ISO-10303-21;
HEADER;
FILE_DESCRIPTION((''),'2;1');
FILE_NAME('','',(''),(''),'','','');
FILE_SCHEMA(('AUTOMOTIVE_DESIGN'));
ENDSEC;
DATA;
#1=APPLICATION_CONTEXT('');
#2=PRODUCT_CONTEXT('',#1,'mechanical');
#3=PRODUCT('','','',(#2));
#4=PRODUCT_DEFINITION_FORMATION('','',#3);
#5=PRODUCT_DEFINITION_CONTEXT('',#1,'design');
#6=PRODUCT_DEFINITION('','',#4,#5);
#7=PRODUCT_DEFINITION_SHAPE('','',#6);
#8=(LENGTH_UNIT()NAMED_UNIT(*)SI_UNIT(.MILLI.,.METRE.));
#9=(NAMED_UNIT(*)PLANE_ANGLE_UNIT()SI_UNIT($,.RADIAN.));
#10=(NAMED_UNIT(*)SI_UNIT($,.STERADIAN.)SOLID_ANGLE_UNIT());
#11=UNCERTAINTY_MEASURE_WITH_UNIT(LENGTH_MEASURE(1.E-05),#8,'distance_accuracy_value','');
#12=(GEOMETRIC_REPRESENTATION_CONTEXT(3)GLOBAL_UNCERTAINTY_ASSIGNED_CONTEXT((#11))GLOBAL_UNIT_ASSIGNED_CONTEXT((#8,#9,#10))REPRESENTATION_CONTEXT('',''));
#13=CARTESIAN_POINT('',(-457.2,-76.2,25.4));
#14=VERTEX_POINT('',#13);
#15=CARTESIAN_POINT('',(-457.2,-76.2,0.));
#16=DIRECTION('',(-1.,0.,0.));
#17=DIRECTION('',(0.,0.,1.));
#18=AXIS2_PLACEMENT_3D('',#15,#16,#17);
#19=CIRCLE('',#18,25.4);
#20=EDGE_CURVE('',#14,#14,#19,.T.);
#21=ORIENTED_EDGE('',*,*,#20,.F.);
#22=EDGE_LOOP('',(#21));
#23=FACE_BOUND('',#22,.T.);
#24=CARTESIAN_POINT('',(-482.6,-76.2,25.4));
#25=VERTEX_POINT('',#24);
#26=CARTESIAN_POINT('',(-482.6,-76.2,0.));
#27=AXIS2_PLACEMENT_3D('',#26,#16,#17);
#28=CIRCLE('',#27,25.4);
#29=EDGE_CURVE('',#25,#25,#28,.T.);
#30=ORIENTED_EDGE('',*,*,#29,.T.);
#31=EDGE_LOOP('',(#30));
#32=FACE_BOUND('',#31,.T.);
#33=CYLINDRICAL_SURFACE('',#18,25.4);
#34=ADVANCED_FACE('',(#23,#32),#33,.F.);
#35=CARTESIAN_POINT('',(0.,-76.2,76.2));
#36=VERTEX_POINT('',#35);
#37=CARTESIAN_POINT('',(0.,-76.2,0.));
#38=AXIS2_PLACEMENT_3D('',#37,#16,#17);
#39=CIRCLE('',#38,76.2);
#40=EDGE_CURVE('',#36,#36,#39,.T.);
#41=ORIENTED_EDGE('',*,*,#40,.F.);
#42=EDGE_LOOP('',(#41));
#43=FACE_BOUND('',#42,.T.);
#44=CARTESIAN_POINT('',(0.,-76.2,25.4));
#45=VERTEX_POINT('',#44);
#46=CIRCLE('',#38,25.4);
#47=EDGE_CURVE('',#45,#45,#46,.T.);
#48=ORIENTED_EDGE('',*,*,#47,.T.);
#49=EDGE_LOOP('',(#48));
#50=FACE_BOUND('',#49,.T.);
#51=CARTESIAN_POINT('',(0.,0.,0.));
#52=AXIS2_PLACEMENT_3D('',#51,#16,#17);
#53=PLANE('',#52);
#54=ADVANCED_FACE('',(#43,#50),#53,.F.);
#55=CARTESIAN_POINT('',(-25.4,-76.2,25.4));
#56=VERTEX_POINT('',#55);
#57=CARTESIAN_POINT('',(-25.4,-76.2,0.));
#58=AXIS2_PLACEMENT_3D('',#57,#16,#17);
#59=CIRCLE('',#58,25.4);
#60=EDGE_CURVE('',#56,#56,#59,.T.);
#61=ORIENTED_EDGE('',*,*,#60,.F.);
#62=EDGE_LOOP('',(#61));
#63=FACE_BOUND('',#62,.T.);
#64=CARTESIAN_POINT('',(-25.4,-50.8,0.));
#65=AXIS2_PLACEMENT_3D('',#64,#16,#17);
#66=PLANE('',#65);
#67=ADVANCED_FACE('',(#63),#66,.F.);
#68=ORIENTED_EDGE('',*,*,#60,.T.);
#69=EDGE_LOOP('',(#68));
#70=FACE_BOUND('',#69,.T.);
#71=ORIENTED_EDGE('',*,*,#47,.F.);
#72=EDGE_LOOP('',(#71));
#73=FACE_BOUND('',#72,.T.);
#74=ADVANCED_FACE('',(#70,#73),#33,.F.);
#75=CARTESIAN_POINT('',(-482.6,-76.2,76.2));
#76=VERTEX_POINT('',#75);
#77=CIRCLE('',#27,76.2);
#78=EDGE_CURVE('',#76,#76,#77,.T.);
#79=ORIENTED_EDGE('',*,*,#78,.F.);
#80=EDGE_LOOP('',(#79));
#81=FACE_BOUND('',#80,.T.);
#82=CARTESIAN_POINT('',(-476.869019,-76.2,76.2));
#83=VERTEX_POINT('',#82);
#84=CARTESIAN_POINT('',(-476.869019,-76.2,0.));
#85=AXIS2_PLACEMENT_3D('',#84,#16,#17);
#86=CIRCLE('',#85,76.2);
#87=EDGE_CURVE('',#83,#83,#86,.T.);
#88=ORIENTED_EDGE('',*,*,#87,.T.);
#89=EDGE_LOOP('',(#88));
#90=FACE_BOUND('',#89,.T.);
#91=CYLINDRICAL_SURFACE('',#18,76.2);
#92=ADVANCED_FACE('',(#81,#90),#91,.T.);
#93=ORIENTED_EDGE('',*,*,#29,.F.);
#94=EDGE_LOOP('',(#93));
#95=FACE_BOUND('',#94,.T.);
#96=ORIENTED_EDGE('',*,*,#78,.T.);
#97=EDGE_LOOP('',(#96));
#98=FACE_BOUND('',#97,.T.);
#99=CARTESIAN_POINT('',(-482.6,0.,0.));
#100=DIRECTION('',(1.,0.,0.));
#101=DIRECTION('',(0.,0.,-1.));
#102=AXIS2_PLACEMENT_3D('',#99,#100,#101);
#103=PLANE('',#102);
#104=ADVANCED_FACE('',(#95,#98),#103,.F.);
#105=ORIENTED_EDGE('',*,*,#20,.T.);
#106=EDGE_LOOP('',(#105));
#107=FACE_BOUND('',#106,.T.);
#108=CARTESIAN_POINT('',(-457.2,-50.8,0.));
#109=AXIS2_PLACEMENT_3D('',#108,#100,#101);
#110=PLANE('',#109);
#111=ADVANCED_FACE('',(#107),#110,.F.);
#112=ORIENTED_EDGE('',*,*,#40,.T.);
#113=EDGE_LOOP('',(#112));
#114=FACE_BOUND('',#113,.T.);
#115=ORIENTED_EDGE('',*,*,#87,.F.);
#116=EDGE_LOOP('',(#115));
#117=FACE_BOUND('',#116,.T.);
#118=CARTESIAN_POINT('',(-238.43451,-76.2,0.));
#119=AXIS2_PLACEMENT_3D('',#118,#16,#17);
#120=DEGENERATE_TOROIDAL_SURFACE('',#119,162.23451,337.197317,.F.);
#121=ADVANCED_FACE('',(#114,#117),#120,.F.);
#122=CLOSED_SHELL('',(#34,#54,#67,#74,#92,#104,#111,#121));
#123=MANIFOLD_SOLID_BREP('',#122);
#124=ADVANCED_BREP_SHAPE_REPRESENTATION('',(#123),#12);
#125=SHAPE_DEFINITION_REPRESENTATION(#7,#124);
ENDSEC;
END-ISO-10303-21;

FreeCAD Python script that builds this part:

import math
import FreeCAD as App
import Part
import Sketcher
Q = App.Units.Quantity

doc = App.newDocument("Part")
params = doc.addObject("Spreadsheet::Sheet", "Params")
for row, (alias, value) in enumerate([
    ("sketch1_width", "1 in"),
    ("sketch1_width2", "17 in"),
    ("sketch1_height", "2 in"),
    ("revolution_angle", "360 deg"),
], start=1):
    params.set(f"A{row}", alias)
    params.set(f"B{row}", "=" + value)
    params.setAlias(f"B{row}", alias)

body = doc.addObject("PartDesign::Body", "Body")

# Sketch on XY plane
sketch1 = body.newObject("Sketcher::SketchObject", "Sketch")
sketch1.AttachmentSupport = (doc.getObject("XY_Plane"), [""])
sketch1.MapMode = "FlatFace"
sketch1.addGeometry(Part.LineSegment(App.Vector(-483, 0, 0), App.Vector(-483, -51, 0)), False)
sketch1.addGeometry(Part.LineSegment(App.Vector(-483, -51, 0), App.Vector(-457, -51, 0)), False)
sketch1.addGeometry(Part.LineSegment(App.Vector(-457, -51, 0), App.Vector(-457, -76, 0)), False)
sketch1.addGeometry(Part.LineSegment(App.Vector(-457, -76, 0), App.Vector(-25, -76, 0)), False)
sketch1.addGeometry(Part.LineSegment(App.Vector(-25, -76, 0), App.Vector(-25, -51, 0)), False)
sketch1.addGeometry(Part.LineSegment(App.Vector(-25, -51, 0), App.Vector(0, -51, 0)), False)
sketch1.addGeometry(Part.LineSegment(App.Vector(0, -51, 0), App.Vector(0, 0, 0)), False)
sketch1.addGeometry(Part.ArcOfCircle(Part.Circle(App.Vector(-238, -238, 0), App.Vector(0, 0, 1), 337), math.radians(45), math.radians(135)), False)
sketch1.addGeometry(Part.LineSegment(App.Vector(-477, 0, 0), App.Vector(-483, 0, 0)), False)
sketch1.addGeometry(Part.LineSegment(App.Vector(-483, -76, 0), App.Vector(0, -76, 0)), True)  # axis
sketch1.addConstraint(Sketcher.Constraint("Coincident", 0, 2, 1, 1))
sketch1.addConstraint(Sketcher.Constraint("Coincident", 1, 2, 2, 1))
sketch1.addConstraint(Sketcher.Constraint("Coincident", 2, 2, 3, 1))
sketch1.addConstraint(Sketcher.Constraint("Coincident", 3, 2, 4, 1))
sketch1.addConstraint(Sketcher.Constraint("Coincident", 4, 2, 5, 1))
sketch1.addConstraint(Sketcher.Constraint("Coincident", 5, 2, 6, 1))
sketch1.addConstraint(Sketcher.Constraint("Coincident", 6, 2, 7, 1))
sketch1.addConstraint(Sketcher.Constraint("Coincident", 7, 2, 8, 1))
sketch1.addConstraint(Sketcher.Constraint("Coincident", 8, 2, 0, 1))
sketch1.addConstraint(Sketcher.Constraint("Vertical", 0))
sketch1.addConstraint(Sketcher.Constraint("Horizontal", 1))
sketch1.addConstraint(Sketcher.Constraint("Vertical", 2))
sketch1.addConstraint(Sketcher.Constraint("Horizontal", 3))
sketch1.addConstraint(Sketcher.Constraint("Vertical", 4))
sketch1.addConstraint(Sketcher.Constraint("Horizontal", 5))
sketch1.addConstraint(Sketcher.Constraint("Vertical", 6))
sketch1.addConstraint(Sketcher.Constraint("Horizontal", 8))
sketch1.addConstraint(Sketcher.Constraint("Horizontal", 9))
sketch1.addConstraint(Sketcher.Constraint("Coincident", 6, 2, -1, 1))
sketch1.addConstraint(Sketcher.Constraint("PointOnObject", 7, 2, -1))
sketch1.addConstraint(Sketcher.Constraint("PointOnObject", 9, 2, -2))
sketch1.addConstraint(Sketcher.Constraint("Horizontal", 1, 2, 4, 2))
sketch1.addConstraint(Sketcher.Constraint("Horizontal", 3, 2, 9, 1))
sketch1.addConstraint(Sketcher.Constraint("Vertical", 8, 2, 9, 1))
sketch1.addConstraint(Sketcher.Constraint("Equal", 1, 5))
sketch1.addConstraint(Sketcher.Constraint("Equal", 5, 2))
sketch1.addConstraint(Sketcher.Constraint("DistanceX", 1, 1, 1, 2, Q("1 in")))
sketch1.addConstraint(Sketcher.Constraint("DistanceX", 3, 1, 3, 2, Q("17 in")))
sketch1.addConstraint(Sketcher.Constraint("DistanceY", 0, 2, 0, 1, Q("2 in")))
sketch1.addConstraint(Sketcher.Constraint("Radius", 7, Q("337.197317 mm")))
sketch1.addConstraint(Sketcher.Constraint("DistanceX", 8, 2, 8, 1, Q("5.730981 mm")))
sketch1.setExpression("Constraints[26]", "Params.sketch1_width")
sketch1.setExpression("Constraints[27]", "Params.sketch1_width2")
sketch1.setExpression("Constraints[28]", "Params.sketch1_height")
revolution = body.newObject("PartDesign::Revolution", "Revolution")
revolution.Profile = sketch1
revolution.ReferenceAxis = (sketch1, ["Axis0"])
revolution.setExpression("Angle", "Params.revolution_angle")

doc.recompute()
